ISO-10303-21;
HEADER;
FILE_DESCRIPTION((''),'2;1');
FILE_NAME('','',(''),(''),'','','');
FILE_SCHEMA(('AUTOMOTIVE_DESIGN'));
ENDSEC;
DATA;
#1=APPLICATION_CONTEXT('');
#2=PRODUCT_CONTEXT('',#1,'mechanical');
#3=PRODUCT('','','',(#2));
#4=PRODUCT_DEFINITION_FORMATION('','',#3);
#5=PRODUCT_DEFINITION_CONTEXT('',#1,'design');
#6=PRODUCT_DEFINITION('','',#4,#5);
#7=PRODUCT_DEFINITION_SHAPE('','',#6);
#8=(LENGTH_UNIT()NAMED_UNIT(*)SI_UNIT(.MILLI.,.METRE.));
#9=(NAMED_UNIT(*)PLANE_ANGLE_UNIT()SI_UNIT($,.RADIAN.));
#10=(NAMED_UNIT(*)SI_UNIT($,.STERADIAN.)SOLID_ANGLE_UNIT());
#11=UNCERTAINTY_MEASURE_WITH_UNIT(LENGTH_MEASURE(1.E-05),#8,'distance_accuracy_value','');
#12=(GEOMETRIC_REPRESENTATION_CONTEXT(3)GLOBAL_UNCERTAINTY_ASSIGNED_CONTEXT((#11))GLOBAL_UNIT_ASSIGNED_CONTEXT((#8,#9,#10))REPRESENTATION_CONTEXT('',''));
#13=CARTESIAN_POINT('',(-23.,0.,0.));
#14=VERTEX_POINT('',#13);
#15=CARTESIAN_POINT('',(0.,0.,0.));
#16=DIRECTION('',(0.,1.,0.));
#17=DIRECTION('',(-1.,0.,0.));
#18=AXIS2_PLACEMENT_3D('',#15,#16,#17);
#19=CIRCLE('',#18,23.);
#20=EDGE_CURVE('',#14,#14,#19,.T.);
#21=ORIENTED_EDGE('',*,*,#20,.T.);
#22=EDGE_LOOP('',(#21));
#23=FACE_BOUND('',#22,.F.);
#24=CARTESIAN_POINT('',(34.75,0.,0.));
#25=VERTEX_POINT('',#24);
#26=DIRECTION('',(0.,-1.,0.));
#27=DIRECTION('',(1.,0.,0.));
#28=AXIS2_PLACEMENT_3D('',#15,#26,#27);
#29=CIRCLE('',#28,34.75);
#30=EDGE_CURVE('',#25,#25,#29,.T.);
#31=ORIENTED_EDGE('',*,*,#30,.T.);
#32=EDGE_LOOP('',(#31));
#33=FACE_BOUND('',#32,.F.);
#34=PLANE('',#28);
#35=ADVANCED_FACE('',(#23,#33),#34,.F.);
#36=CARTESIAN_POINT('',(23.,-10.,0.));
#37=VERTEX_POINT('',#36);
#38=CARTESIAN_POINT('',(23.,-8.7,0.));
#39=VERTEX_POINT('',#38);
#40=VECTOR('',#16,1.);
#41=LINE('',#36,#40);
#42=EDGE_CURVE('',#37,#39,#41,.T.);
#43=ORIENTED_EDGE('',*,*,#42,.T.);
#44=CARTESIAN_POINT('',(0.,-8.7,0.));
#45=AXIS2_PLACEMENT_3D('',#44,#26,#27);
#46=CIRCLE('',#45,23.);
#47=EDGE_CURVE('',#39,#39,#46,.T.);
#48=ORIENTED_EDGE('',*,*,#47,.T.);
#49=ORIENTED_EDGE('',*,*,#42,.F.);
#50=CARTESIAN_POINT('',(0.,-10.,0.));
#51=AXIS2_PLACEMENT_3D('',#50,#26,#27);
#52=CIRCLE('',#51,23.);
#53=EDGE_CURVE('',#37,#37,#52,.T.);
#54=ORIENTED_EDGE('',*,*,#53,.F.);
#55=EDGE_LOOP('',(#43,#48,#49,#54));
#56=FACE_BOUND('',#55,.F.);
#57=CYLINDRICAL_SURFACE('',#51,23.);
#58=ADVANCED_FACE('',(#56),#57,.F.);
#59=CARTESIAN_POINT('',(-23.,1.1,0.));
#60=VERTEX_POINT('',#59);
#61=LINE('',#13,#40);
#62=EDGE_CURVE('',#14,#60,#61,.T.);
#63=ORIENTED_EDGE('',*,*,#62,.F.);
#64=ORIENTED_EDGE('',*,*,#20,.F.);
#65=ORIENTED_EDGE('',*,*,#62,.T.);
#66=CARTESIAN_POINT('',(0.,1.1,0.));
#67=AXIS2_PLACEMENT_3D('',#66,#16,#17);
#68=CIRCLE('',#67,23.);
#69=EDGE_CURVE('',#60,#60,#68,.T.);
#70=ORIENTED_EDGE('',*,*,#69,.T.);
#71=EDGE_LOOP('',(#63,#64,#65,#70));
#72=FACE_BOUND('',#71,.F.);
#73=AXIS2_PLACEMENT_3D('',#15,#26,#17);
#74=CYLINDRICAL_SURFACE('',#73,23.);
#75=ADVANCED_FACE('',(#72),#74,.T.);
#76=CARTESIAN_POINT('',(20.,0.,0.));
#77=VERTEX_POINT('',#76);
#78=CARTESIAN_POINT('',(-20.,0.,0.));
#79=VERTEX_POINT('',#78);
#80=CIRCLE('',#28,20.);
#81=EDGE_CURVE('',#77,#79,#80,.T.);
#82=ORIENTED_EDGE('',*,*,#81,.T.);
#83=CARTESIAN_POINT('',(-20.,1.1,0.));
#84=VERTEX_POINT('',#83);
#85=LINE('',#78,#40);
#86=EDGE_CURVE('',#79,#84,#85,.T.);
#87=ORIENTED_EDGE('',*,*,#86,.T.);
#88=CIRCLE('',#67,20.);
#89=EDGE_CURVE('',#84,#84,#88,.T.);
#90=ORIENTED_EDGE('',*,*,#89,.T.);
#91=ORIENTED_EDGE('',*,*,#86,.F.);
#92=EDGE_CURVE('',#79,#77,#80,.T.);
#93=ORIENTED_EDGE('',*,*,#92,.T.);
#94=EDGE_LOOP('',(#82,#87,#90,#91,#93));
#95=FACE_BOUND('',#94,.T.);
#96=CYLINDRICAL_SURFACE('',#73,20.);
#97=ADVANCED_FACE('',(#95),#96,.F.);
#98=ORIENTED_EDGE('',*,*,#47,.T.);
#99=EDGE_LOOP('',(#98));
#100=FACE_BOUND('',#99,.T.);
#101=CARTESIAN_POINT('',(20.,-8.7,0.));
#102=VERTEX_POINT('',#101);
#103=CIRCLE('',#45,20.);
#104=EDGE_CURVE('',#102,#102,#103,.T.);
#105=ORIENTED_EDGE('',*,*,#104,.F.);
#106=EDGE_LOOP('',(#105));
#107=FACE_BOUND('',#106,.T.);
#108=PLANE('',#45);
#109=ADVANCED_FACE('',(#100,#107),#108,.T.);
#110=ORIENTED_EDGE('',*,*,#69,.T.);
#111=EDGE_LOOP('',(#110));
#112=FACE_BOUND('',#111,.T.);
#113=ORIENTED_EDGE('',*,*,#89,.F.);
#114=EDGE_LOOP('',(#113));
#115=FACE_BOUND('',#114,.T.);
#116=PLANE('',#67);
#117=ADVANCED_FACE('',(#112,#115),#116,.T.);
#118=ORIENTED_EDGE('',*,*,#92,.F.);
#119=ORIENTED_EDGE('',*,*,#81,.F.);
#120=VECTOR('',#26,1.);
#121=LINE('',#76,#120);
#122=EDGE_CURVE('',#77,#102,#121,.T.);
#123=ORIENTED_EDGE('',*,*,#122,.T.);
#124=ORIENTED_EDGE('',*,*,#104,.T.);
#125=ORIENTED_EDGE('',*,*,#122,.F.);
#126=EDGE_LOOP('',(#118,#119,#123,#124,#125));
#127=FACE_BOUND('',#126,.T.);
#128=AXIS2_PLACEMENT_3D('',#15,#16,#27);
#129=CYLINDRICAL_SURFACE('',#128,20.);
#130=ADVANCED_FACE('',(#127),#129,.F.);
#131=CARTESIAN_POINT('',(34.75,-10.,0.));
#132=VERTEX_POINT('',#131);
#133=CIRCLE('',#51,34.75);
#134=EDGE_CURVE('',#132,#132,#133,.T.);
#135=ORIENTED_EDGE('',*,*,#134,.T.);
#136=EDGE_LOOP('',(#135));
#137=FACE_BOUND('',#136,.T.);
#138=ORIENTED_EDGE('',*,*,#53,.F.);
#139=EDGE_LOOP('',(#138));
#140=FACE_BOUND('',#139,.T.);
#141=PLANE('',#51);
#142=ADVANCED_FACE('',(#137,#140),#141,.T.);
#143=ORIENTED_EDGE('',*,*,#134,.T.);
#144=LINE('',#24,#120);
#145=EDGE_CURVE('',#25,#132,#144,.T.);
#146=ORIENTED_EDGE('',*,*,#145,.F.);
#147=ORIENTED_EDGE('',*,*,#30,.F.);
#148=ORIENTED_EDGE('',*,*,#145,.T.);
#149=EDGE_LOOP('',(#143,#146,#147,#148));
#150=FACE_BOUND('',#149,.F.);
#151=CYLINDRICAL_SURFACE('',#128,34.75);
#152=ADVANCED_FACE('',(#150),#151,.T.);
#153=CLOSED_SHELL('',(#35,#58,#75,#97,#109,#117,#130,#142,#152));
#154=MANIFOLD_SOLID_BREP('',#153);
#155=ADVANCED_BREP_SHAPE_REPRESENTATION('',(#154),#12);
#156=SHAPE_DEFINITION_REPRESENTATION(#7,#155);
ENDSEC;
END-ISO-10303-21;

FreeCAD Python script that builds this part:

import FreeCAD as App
import Part
import Sketcher

doc = App.newDocument("Part")
body = doc.addObject("PartDesign::Body", "Body")

# Sketch on XZ plane
sketch1 = doc.addObject("Sketcher::SketchObject", "Sketch")
body.addObject(sketch1)
sketch1.AttachmentSupport = (doc.XZ_Plane, [""])
sketch1.MapMode = "FlatFace"
sketch1.addGeometry([
    Part.Circle(App.Vector(0, 0, 0), App.Vector(0, 0, 1), 35),
    Part.Circle(App.Vector(0, 0, 0), App.Vector(0, 0, 1), 20),
], False)
sketch1.addConstraint([
    Sketcher.Constraint("Coincident", 0, 3, -1, 1),
    Sketcher.Constraint("Coincident", 1, 3, -1, 1),
    Sketcher.Constraint("Diameter", 1, 40.0),
    Sketcher.Constraint("Diameter", 0, 69.5),
])
pad1 = doc.addObject("PartDesign::Pad", "Pad")
body.addObject(pad1)
pad1.Profile = sketch1
pad1.Length = 10

# Sketch on XZ plane
sketch2 = doc.addObject("Sketcher::SketchObject", "Sketch001")
body.addObject(sketch2)
sketch2.AttachmentSupport = (doc.XZ_Plane, [""])
sketch2.MapMode = "FlatFace"
sketch2.AttachmentOffset = App.Placement(App.Vector(0, 0, 10), App.Rotation())
sketch2.addGeometry([
    Part.Circle(App.Vector(0, 0, 0), App.Vector(0, 0, 1), 23),
    Part.Circle(App.Vector(0, 0, 0), App.Vector(0, 0, 1), 20),
], False)
sketch2.addConstraint([
    Sketcher.Constraint("Coincident", 0, 3, -1, 1),
    Sketcher.Constraint("Coincident", 1, 3, -1, 1),
    Sketcher.Constraint("Diameter", 0, 46.0),
    Sketcher.Constraint("Diameter", 1, 40.0),
])
pocket1 = doc.addObject("PartDesign::Pocket", "Pocket")
body.addObject(pocket1)
pocket1.Profile = sketch2
pocket1.Length = 1.3

# Sketch on XZ plane
sketch3 = doc.addObject("Sketcher::SketchObject", "Sketch002")
body.addObject(sketch3)
sketch3.AttachmentSupport = (doc.XZ_Plane, [""])
sketch3.MapMode = "FlatFace"
sketch3.addGeometry([
    Part.Circle(App.Vector(0, 0, 0), App.Vector(0, 0, 1), 23),
    Part.Circle(App.Vector(0, 0, 0), App.Vector(0, 0, 1), 20),
], False)
sketch3.addConstraint([
    Sketcher.Constraint("Coincident", 0, 3, -1, 1),
    Sketcher.Constraint("Coincident", 1, 3, -1, 1),
    Sketcher.Constraint("Diameter", 0, 46.0),
    Sketcher.Constraint("Diameter", 1, 40.0),
])
pad2 = doc.addObject("PartDesign::Pad", "Pad001")
body.addObject(pad2)
pad2.Profile = sketch3
pad2.Length = 1.1
pad2.Reversed = True

doc.recompute()
